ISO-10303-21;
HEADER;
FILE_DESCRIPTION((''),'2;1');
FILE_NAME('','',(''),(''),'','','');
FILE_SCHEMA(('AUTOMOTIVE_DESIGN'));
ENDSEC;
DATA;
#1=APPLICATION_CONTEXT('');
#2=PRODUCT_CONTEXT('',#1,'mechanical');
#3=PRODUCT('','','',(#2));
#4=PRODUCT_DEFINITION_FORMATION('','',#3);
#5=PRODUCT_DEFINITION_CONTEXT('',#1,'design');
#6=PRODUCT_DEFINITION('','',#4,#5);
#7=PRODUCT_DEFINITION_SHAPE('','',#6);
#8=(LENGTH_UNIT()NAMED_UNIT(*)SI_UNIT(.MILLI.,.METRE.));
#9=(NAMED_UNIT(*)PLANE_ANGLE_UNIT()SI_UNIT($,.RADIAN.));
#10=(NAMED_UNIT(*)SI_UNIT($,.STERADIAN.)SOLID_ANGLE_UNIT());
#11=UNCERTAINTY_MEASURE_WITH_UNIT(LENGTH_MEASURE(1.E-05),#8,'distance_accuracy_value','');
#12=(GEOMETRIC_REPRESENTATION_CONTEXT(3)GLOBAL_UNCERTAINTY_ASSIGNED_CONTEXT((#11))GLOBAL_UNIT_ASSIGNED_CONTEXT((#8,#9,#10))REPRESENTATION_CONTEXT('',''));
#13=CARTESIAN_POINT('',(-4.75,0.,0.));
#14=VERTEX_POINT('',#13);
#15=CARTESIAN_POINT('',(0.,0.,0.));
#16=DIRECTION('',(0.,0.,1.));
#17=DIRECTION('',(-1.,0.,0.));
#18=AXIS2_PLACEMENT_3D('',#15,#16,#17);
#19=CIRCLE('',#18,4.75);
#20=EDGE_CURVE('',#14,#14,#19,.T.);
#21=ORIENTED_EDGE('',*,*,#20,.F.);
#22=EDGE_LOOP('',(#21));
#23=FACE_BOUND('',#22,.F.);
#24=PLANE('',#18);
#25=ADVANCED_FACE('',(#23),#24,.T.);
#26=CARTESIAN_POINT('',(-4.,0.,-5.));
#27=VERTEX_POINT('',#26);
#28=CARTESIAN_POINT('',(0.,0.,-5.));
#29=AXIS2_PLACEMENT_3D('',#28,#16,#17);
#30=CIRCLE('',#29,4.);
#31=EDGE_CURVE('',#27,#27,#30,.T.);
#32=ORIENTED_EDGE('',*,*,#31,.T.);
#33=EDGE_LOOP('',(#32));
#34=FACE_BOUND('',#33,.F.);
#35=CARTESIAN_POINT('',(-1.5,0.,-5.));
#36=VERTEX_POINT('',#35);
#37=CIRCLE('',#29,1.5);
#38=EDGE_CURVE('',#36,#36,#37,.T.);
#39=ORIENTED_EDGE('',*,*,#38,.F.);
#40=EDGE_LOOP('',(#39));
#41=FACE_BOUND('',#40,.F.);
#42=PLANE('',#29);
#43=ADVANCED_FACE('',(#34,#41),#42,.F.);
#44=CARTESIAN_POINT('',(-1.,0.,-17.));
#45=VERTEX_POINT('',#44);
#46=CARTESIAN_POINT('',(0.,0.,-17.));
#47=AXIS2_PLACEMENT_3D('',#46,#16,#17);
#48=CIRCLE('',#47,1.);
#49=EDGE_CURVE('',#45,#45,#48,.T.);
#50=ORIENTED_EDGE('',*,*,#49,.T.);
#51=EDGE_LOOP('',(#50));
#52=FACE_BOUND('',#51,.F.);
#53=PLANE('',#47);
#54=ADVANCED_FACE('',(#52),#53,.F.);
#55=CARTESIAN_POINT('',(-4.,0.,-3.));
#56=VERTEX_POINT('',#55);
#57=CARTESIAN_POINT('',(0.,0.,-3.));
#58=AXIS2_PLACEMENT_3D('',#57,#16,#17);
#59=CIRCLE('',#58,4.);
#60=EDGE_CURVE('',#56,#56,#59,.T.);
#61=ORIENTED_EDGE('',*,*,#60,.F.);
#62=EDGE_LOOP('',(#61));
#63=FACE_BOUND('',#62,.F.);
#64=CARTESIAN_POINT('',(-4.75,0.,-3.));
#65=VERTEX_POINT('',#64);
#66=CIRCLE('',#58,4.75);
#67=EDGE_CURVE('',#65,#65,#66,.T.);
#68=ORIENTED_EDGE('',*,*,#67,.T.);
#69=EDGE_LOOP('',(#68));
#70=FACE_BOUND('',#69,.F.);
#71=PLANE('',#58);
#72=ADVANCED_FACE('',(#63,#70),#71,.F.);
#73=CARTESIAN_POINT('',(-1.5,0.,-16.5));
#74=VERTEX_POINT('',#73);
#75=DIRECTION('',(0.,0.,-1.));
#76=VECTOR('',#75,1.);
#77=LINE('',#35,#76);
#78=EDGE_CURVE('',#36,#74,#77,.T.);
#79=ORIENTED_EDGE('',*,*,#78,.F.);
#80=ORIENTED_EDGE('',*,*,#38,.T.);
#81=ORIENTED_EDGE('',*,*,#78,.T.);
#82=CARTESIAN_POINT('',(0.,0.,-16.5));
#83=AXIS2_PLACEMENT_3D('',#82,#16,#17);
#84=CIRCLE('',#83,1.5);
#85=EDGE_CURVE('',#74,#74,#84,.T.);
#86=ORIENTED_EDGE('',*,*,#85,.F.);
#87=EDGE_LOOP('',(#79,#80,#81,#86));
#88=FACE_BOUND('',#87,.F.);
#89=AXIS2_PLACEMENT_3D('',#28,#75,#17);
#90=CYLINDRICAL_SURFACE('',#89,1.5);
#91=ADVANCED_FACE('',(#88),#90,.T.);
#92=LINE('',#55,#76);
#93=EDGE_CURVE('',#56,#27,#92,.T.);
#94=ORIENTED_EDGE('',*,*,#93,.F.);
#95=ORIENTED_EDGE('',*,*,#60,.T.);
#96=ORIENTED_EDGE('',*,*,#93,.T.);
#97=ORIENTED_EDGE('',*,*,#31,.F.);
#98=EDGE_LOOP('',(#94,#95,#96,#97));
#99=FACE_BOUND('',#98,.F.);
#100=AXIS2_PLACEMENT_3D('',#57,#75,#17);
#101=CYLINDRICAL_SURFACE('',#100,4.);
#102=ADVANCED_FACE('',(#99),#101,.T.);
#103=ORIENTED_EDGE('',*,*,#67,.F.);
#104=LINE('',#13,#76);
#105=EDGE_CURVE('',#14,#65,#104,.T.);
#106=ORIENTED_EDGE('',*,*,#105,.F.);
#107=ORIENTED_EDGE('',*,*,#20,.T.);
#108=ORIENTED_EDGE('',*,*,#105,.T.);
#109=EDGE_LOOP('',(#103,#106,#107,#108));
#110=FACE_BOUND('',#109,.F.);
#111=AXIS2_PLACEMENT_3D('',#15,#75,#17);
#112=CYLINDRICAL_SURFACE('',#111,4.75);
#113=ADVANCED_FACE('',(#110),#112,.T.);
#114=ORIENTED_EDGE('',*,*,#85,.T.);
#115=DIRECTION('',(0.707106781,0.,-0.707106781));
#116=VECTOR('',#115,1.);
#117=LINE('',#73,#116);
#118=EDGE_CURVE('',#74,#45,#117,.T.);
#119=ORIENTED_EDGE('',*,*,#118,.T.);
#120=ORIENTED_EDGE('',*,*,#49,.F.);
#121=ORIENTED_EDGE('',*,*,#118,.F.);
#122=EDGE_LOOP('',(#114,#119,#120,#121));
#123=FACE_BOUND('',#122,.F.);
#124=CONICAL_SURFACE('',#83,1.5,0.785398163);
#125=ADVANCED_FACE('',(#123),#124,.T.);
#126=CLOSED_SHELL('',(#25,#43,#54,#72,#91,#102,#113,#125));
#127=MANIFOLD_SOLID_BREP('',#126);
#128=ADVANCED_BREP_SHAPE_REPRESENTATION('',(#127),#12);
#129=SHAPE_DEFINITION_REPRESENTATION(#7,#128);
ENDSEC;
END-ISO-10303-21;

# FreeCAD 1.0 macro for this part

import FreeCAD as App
import Part
import Sketcher
Q = App.Units.Quantity


def edges_at(feature, points):
    """Names of the edges that pass closest to the given points."""
    edges = feature.Shape.Edges
    near = lambda p: min(range(len(edges)), key=lambda i: edges[i].distToShape(Part.Vertex(*p))[0])
    return sorted({f"Edge{near(p) + 1}" for p in points})

doc = App.newDocument("Part")
body = doc.addObject("PartDesign::Body", "Body")

# Sketch on XZ plane
sketch1 = body.newObject("Sketcher::SketchObject", "Sketch")
sketch1.AttachmentSupport = (doc.getObject("XZ_Plane"), [""])
sketch1.MapMode = "FlatFace"
sketch1.addGeometry(Part.LineSegment(App.Vector(0, 0, 0), App.Vector(-4.8, 0, 0)), False)
sketch1.addGeometry(Part.LineSegment(App.Vector(-4.8, 0, 0), App.Vector(-4.8, -3, 0)), False)
sketch1.addGeometry(Part.LineSegment(App.Vector(-4.8, -3, 0), App.Vector(-4, -3, 0)), False)
sketch1.addGeometry(Part.LineSegment(App.Vector(-4, -3, 0), App.Vector(-4, -5, 0)), False)
sketch1.addGeometry(Part.LineSegment(App.Vector(-4, -5, 0), App.Vector(-1.5, -5, 0)), False)
sketch1.addGeometry(Part.LineSegment(App.Vector(-1.5, -5, 0), App.Vector(-1.5, -17, 0)), False)
sketch1.addGeometry(Part.LineSegment(App.Vector(-1.5, -17, 0), App.Vector(0, -17, 0)), False)
sketch1.addGeometry(Part.LineSegment(App.Vector(0, -17, 0), App.Vector(0, 0, 0)), False)
sketch1.addConstraint(Sketcher.Constraint("Coincident", 0, 2, 1, 1))
sketch1.addConstraint(Sketcher.Constraint("Coincident", 1, 2, 2, 1))
sketch1.addConstraint(Sketcher.Constraint("Coincident", 2, 2, 3, 1))
sketch1.addConstraint(Sketcher.Constraint("Coincident", 3, 2, 4, 1))
sketch1.addConstraint(Sketcher.Constraint("Coincident", 4, 2, 5, 1))
sketch1.addConstraint(Sketcher.Constraint("Coincident", 5, 2, 6, 1))
sketch1.addConstraint(Sketcher.Constraint("Coincident", 6, 2, 7, 1))
sketch1.addConstraint(Sketcher.Constraint("Coincident", 7, 2, 0, 1))
sketch1.addConstraint(Sketcher.Constraint("Horizontal", 0))
sketch1.addConstraint(Sketcher.Constraint("Vertical", 1))
sketch1.addConstraint(Sketcher.Constraint("Horizontal", 2))
sketch1.addConstraint(Sketcher.Constraint("Vertical", 3))
sketch1.addConstraint(Sketcher.Constraint("Horizontal", 4))
sketch1.addConstraint(Sketcher.Constraint("Vertical", 5))
sketch1.addConstraint(Sketcher.Constraint("Horizontal", 6))
sketch1.addConstraint(Sketcher.Constraint("Vertical", 7))
sketch1.addConstraint(Sketcher.Constraint("Coincident", 7, 2, -1, 1))
sketch1.addConstraint(Sketcher.Constraint("DistanceY", 1, 2, 1, 1, Q("3 mm")))
sketch1.addConstraint(Sketcher.Constraint("DistanceY", 3, 2, 3, 1, Q("2 mm")))
sketch1.addConstraint(Sketcher.Constraint("DistanceY", 5, 2, 5, 1, Q("12 mm")))
sketch1.addConstraint(Sketcher.Constraint("DistanceX", 4, 1, 4, 2, Q("2.5 mm")))
sketch1.addConstraint(Sketcher.Constraint("DistanceX", 6, 1, 6, 2, Q("1.5 mm")))
sketch1.addConstraint(Sketcher.Constraint("DistanceX", 0, 2, 0, 1, Q("4.75 mm")))
revolution = body.newObject("PartDesign::Revolution", "Revolution")
revolution.Profile = sketch1
revolution.ReferenceAxis = (sketch1, ["V_Axis"])
revolution.Angle = 360
doc.recompute()

chamfer = body.newObject("PartDesign::Chamfer", "Chamfer")
chamfer.Base = (revolution, edges_at(revolution, [(1.5, 0, -17)]))
chamfer.Size = 0.5

doc.recompute()
